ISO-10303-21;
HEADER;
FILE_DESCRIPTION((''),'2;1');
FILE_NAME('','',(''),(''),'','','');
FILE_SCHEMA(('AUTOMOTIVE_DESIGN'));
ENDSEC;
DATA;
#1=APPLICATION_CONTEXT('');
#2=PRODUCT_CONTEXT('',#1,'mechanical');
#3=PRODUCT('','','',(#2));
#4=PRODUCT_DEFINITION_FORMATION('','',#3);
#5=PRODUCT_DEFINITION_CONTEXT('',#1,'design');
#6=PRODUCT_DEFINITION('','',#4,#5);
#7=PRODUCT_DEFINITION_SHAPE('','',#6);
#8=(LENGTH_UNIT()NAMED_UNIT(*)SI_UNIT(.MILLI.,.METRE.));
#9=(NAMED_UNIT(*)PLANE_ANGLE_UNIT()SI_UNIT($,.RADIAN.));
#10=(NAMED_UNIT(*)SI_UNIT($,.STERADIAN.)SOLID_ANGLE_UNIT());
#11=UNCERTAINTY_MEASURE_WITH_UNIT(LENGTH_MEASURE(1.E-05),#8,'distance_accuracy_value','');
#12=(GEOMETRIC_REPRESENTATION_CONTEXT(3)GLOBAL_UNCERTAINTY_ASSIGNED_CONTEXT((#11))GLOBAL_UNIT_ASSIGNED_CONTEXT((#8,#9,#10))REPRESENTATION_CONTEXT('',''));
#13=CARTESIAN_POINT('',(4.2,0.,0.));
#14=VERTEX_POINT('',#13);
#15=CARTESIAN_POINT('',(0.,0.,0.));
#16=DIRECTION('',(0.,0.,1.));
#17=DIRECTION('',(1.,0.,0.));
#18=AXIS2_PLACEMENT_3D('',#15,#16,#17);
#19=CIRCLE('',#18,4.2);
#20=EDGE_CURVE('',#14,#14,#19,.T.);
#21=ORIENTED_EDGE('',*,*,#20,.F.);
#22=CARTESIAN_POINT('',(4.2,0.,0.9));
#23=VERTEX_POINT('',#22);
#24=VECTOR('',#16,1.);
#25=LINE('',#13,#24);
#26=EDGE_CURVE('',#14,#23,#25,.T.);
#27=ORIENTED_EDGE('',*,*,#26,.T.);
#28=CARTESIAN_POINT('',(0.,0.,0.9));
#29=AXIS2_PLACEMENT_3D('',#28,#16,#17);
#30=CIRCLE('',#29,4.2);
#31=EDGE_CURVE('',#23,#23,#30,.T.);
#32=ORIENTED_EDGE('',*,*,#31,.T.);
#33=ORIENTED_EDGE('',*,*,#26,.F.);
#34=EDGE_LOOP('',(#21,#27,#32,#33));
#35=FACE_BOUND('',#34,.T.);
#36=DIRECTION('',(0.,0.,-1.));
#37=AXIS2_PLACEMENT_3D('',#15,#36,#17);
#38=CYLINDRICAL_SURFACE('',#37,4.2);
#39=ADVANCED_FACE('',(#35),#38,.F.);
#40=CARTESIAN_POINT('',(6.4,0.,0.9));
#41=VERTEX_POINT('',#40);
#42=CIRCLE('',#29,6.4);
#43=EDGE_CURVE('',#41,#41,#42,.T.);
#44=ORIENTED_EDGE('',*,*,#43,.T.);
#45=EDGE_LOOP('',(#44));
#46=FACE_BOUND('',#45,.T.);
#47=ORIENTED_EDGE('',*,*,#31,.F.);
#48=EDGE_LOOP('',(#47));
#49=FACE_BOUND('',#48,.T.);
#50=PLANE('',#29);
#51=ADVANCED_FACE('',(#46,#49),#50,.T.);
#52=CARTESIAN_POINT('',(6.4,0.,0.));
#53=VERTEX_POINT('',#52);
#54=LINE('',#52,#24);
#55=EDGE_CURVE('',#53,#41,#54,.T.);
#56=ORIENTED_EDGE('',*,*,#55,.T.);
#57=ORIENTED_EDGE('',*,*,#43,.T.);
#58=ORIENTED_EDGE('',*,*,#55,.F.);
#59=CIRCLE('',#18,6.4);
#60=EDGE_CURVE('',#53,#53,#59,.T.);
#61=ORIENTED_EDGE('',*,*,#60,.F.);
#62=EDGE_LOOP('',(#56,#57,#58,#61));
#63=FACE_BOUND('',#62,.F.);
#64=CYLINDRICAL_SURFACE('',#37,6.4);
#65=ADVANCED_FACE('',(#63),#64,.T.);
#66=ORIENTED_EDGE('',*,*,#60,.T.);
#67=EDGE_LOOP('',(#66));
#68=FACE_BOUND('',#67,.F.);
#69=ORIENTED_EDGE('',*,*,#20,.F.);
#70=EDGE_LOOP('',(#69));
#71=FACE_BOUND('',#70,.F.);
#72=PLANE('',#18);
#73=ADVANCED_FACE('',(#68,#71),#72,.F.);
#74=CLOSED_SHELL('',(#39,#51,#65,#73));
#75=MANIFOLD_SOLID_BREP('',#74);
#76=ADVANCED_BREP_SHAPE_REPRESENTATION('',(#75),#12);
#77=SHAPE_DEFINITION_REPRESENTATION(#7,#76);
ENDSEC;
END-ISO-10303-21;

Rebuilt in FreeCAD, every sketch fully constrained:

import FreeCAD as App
import Part
import Sketcher

V = App.Vector
Q = App.Units.Quantity

doc = App.newDocument("Part")
body = doc.addObject("PartDesign::Body", "Body")

# Sketch on XY plane
sketch1 = body.newObject("Sketcher::SketchObject", "Sketch")
sketch1.AttachmentSupport = (doc.getObject("XY_Plane"), [""])
sketch1.MapMode = "FlatFace"
sketch1.addGeometry([
    Part.Circle(V(0, 0, 0), V(0, 0, 1), 6.4),
    Part.Circle(V(0, 0, 0), V(0, 0, 1), 4.2),
], False)
sketch1.addConstraint([
    Sketcher.Constraint("Coincident", 0, 3, -1, 1),
    Sketcher.Constraint("Coincident", 1, 3, -1, 1),
    Sketcher.Constraint("Diameter", 0, Q("12.8 mm")),
    Sketcher.Constraint("Diameter", 1, Q("8.4 mm")),
])
pad1 = body.newObject("PartDesign::Pad", "Pad")
pad1.Profile = sketch1
pad1.Length = 0.9

doc.recompute()
